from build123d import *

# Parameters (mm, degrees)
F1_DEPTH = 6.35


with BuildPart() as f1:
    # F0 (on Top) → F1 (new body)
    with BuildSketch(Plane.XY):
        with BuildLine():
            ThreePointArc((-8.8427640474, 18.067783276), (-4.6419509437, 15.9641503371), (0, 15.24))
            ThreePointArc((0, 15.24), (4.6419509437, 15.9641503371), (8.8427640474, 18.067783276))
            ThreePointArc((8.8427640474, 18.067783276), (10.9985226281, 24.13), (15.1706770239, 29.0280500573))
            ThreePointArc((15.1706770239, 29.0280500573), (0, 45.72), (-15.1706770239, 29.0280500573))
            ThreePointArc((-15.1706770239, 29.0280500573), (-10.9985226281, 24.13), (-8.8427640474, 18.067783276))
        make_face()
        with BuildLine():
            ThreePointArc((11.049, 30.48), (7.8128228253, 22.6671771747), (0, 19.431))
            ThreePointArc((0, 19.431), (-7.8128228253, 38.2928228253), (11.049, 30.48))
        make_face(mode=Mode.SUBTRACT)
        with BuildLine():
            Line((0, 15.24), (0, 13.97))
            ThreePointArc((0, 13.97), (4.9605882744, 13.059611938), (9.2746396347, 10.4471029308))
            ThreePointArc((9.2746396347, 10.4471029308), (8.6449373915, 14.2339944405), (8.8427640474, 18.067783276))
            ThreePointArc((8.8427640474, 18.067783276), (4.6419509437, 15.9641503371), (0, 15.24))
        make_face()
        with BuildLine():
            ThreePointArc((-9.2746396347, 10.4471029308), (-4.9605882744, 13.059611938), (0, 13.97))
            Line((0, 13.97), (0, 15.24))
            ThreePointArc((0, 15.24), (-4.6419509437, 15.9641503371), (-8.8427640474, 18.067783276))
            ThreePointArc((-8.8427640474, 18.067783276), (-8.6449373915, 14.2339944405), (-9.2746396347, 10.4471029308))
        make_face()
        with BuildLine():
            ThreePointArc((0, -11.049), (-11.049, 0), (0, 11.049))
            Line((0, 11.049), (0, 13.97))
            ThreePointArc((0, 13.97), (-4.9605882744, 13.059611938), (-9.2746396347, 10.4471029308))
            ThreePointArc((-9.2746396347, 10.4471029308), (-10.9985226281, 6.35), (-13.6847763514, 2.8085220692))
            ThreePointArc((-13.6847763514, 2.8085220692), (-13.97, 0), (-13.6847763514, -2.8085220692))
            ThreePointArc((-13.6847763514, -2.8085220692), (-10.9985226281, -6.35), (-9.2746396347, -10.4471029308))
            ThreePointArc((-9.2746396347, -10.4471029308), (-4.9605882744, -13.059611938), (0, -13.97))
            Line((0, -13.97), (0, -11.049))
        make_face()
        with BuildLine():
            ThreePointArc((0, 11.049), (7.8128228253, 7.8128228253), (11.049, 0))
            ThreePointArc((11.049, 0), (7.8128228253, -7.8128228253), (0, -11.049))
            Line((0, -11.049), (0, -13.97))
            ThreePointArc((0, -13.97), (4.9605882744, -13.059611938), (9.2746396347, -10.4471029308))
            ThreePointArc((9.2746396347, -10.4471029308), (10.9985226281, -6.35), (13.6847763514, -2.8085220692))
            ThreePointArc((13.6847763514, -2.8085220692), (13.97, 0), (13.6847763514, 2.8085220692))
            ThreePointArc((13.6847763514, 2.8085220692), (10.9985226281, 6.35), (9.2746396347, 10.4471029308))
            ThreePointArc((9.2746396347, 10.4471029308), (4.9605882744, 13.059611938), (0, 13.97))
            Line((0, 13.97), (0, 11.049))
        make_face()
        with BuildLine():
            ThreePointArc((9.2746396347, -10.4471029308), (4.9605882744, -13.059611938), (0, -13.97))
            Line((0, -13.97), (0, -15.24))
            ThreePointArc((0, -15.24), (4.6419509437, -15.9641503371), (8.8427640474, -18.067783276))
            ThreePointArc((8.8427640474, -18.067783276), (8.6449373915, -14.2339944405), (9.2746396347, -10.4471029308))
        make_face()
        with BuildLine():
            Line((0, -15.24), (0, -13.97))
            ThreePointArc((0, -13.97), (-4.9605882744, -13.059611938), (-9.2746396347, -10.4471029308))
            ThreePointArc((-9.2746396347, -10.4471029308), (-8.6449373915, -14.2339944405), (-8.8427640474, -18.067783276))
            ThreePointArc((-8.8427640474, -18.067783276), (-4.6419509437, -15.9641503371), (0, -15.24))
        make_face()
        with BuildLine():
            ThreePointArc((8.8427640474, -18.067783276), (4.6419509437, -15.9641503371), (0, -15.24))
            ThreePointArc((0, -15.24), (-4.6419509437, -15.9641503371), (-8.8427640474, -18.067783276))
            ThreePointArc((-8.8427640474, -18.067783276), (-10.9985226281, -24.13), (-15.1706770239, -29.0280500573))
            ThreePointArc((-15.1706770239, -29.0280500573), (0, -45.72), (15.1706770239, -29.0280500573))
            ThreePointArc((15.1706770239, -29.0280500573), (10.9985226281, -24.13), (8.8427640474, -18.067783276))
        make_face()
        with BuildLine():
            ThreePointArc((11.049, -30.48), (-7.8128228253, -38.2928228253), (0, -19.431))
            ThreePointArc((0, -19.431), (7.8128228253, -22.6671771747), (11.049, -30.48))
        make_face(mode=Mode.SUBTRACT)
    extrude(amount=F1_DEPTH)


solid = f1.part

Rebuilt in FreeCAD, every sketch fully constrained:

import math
import FreeCAD as App
import Part
import Sketcher

V = App.Vector
Q = App.Units.Quantity

doc = App.newDocument("Part")
body = doc.addObject("PartDesign::Body", "Body")

sketch1 = body.newObject("Sketcher::SketchObject", "Sketch")
sketch1.AttachmentSupport = (doc.getObject("XY_Plane"), [""])
sketch1.MapMode = "FlatFace"
sketch1.addGeometry(Part.ArcOfCircle(Part.Circle(V(26, 15, 0), V(0, 0, 1), 18), math.radians(171), math.radians(196)), False)
sketch1.addGeometry(Part.ArcOfCircle(Part.Circle(V(26, 15, 0), V(0, 0, 1), 18), math.radians(129), math.radians(171)), False)
sketch1.addGeometry(Part.ArcOfCircle(Part.Circle(V(0, 30, 0), V(0, 0, 1), 15), math.radians(-5), math.radians(185)), False)
sketch1.addGeometry(Part.ArcOfCircle(Part.Circle(V(-26, 15, 0), V(0, 0, 1), 18), math.radians(9), math.radians(51)), False)
sketch1.addGeometry(Part.ArcOfCircle(Part.Circle(V(-26, 15, 0), V(0, 0, 1), 18), math.radians(-16), math.radians(9)), False)
sketch1.addGeometry(Part.ArcOfCircle(Part.Circle(V(-26, 15, 0), V(0, 0, 1), 18), math.radians(-44), math.radians(-16)), False)
sketch1.addGeometry(Part.ArcOfCircle(Part.Circle(V(0, 0, 0), V(0, 0, 1), 14), math.radians(168), math.radians(192)), False)
sketch1.addGeometry(Part.ArcOfCircle(Part.Circle(V(-26, -15, 0), V(0, 0, 1), 18), math.radians(16), math.radians(44)), False)
sketch1.addGeometry(Part.ArcOfCircle(Part.Circle(V(-26, -15, 0), V(0, 0, 1), 18), math.radians(-9), math.radians(16)), False)
sketch1.addGeometry(Part.ArcOfCircle(Part.Circle(V(-26, -15, 0), V(0, 0, 1), 18), math.radians(-51), math.radians(-9)), False)
sketch1.addGeometry(Part.ArcOfCircle(Part.Circle(V(0, -30, 0), V(0, 0, 1), 15), math.radians(175), math.radians(365)), False)
sketch1.addGeometry(Part.ArcOfCircle(Part.Circle(V(26, -15, 0), V(0, 0, 1), 18), math.radians(-171), math.radians(-129)), False)
sketch1.addGeometry(Part.ArcOfCircle(Part.Circle(V(26, -15, 0), V(0, 0, 1), 18), math.radians(164), math.radians(189)), False)
sketch1.addGeometry(Part.ArcOfCircle(Part.Circle(V(26, -15, 0), V(0, 0, 1), 18), math.radians(136), math.radians(164)), False)
sketch1.addGeometry(Part.ArcOfCircle(Part.Circle(V(0, 0, 0), V(0, 0, 1), 14), math.radians(-12), math.radians(12)), False)
sketch1.addGeometry(Part.ArcOfCircle(Part.Circle(V(26, 15, 0), V(0, 0, 1), 18), math.radians(-164), math.radians(-136)), False)
sketch1.addGeometry(Part.ArcOfCircle(Part.Circle(V(0, -30, 0), V(0, 0, 1), 11), math.radians(0), math.radians(90)), False)
sketch1.addGeometry(Part.ArcOfCircle(Part.Circle(V(0, -30, 0), V(0, 0, 1), 11), math.radians(90), math.radians(360)), False)
sketch1.addGeometry(Part.ArcOfCircle(Part.Circle(V(0, 0, 0), V(0, 0, 1), 11), math.radians(90), math.radians(270)), False)
sketch1.addGeometry(Part.ArcOfCircle(Part.Circle(V(0, 0, 0), V(0, 0, 1), 11), math.radians(0), math.radians(90)), False)
sketch1.addGeometry(Part.ArcOfCircle(Part.Circle(V(0, 0, 0), V(0, 0, 1), 11), math.radians(-90), math.radians(0)), False)
sketch1.addGeometry(Part.ArcOfCircle(Part.Circle(V(0, 30, 0), V(0, 0, 1), 11), math.radians(0), math.radians(270)), False)
sketch1.addGeometry(Part.ArcOfCircle(Part.Circle(V(0, 30, 0), V(0, 0, 1), 11), math.radians(-90), math.radians(0)), False)
sketch1.addConstraint(Sketcher.Constraint("Tangent", 0, 1, 1, 2))
sketch1.addConstraint(Sketcher.Constraint("Coincident", 1, 1, 2, 1))
sketch1.addConstraint(Sketcher.Constraint("Coincident", 2, 2, 3, 2))
sketch1.addConstraint(Sketcher.Constraint("Tangent", 3, 1, 4, 2))
sketch1.addConstraint(Sketcher.Constraint("Tangent", 4, 1, 5, 2))
sketch1.addConstraint(Sketcher.Constraint("Coincident", 5, 1, 6, 1))
sketch1.addConstraint(Sketcher.Constraint("Coincident", 6, 2, 7, 2))
sketch1.addConstraint(Sketcher.Constraint("Tangent", 7, 1, 8, 2))
sketch1.addConstraint(Sketcher.Constraint("Tangent", 8, 1, 9, 2))
sketch1.addConstraint(Sketcher.Constraint("Coincident", 9, 1, 10, 1))
sketch1.addConstraint(Sketcher.Constraint("Coincident", 10, 2, 11, 2))
sketch1.addConstraint(Sketcher.Constraint("Tangent", 11, 1, 12, 2))
sketch1.addConstraint(Sketcher.Constraint("Tangent", 12, 1, 13, 2))
sketch1.addConstraint(Sketcher.Constraint("Coincident", 13, 1, 14, 1))
sketch1.addConstraint(Sketcher.Constraint("Coincident", 14, 2, 15, 2))
sketch1.addConstraint(Sketcher.Constraint("Tangent", 15, 1, 0, 2))
sketch1.addConstraint(Sketcher.Constraint("Tangent", 16, 1, 17, 2))
sketch1.addConstraint(Sketcher.Constraint("Coincident", 17, 1, 16, 2))
sketch1.addConstraint(Sketcher.Constraint("Tangent", 18, 1, 19, 2))
sketch1.addConstraint(Sketcher.Constraint("Tangent", 19, 1, 20, 2))
sketch1.addConstraint(Sketcher.Constraint("Tangent", 20, 1, 18, 2))
sketch1.addConstraint(Sketcher.Constraint("Tangent", 21, 1, 22, 2))
sketch1.addConstraint(Sketcher.Constraint("Coincident", 22, 1, 21, 2))
sketch1.addConstraint(Sketcher.Constraint("Coincident", 6, 3, -1, 1))
sketch1.addConstraint(Sketcher.Constraint("Coincident", 14, 3, -1, 1))
sketch1.addConstraint(Sketcher.Constraint("Coincident", 18, 3, -1, 1))
sketch1.addConstraint(Sketcher.Constraint("Coincident", 5, 3, 3, 3))
sketch1.addConstraint(Sketcher.Constraint("Coincident", 9, 3, 7, 3))
sketch1.addConstraint(Sketcher.Constraint("Coincident", 13, 3, 11, 3))
sketch1.addConstraint(Sketcher.Constraint("Coincident", 16, 3, 10, 3))
sketch1.addConstraint(Sketcher.Constraint("Coincident", 21, 3, 2, 3))
sketch1.addConstraint(Sketcher.Constraint("Equal", 0, 1))
sketch1.addConstraint(Sketcher.Constraint("Equal", 1, 3))
sketch1.addConstraint(Sketcher.Constraint("Equal", 5, 7))
sketch1.addConstraint(Sketcher.Constraint("Equal", 2, 10))
sketch1.addConstraint(Sketcher.Constraint("Equal", 9, 11))
sketch1.addConstraint(Sketcher.Constraint("Equal", 6, 14))
sketch1.addConstraint(Sketcher.Constraint("Equal", 13, 15))
sketch1.addConstraint(Sketcher.Constraint("Equal", 17, 18))
sketch1.addConstraint(Sketcher.Constraint("Equal", 20, 21))
sketch1.addConstraint(Sketcher.Constraint("Symmetric", 0, 3, 7, 3, -1, 1))
sketch1.addConstraint(Sketcher.Constraint("Symmetric", 2, 3, 10, 3, -1, 1))
sketch1.addConstraint(Sketcher.Constraint("Symmetric", 3, 3, 11, 3, -1, 1))
sketch1.addConstraint(Sketcher.Constraint("Symmetric", 0, 3, 3, 3, -2))
sketch1.addConstraint(Sketcher.Constraint("Symmetric", 16, 1, 21, 1, -1))
sketch1.addConstraint(Sketcher.Constraint("PointOnObject", 17, 1, -2))
sketch1.addConstraint(Sketcher.Constraint("PointOnObject", 18, 1, -2))
sketch1.addConstraint(Sketcher.Constraint("PointOnObject", 19, 1, -1))
sketch1.addConstraint(Sketcher.Constraint("PointOnObject", 20, 1, -2))
sketch1.addConstraint(Sketcher.Constraint("PointOnObject", 22, 1, -2))
sketch1.addConstraint(Sketcher.Constraint("Horizontal", 0, 1, 3, 1))
sketch1.addConstraint(Sketcher.Constraint("Horizontal", 8, 1, 11, 1))
sketch1.addConstraint(Sketcher.Constraint("Horizontal", 7, 1, 12, 1))
sketch1.addConstraint(Sketcher.Constraint("Horizontal", 4, 1, 15, 1))
sketch1.addConstraint(Sketcher.Constraint("Horizontal", 17, 3, 16, 1))
sketch1.addConstraint(Sketcher.Constraint("Vertical", 4, 1, 7, 1))
sketch1.addConstraint(Sketcher.Constraint("Vertical", 3, 1, 8, 1))
sketch1.addConstraint(Sketcher.Constraint("Radius", 0, Q("0.7 in")))
sketch1.addConstraint(Sketcher.Constraint("Radius", 2, Q("0.6 in")))
sketch1.addConstraint(Sketcher.Constraint("Radius", 6, Q("0.55 in")))
sketch1.addConstraint(Sketcher.Constraint("Radius", 16, Q("0.435 in")))
sketch1.addConstraint(Sketcher.Constraint("DistanceY", -1, 1, 0, 3, Q("0.6 in")))
sketch1.addConstraint(Sketcher.Constraint("DistanceY", -1, 1, 2, 3, Q("1.2 in")))
sketch1.addConstraint(Sketcher.Constraint("DistanceY", -1, 1, 1, 1, Q("29.02805 mm")))
sketch1.addConstraint(Sketcher.Constraint("DistanceX", 4, 1, -1, 1, Q("9.27464 mm")))
sketch1.addConstraint(Sketcher.Constraint("DistanceX", 0, 1, 0, 3, Q("17.55369 mm")))
pad1 = body.newObject("PartDesign::Pad", "Pad")
pad1.Profile = sketch1
pad1.Length = Q("0.25 in")

doc.recompute()
